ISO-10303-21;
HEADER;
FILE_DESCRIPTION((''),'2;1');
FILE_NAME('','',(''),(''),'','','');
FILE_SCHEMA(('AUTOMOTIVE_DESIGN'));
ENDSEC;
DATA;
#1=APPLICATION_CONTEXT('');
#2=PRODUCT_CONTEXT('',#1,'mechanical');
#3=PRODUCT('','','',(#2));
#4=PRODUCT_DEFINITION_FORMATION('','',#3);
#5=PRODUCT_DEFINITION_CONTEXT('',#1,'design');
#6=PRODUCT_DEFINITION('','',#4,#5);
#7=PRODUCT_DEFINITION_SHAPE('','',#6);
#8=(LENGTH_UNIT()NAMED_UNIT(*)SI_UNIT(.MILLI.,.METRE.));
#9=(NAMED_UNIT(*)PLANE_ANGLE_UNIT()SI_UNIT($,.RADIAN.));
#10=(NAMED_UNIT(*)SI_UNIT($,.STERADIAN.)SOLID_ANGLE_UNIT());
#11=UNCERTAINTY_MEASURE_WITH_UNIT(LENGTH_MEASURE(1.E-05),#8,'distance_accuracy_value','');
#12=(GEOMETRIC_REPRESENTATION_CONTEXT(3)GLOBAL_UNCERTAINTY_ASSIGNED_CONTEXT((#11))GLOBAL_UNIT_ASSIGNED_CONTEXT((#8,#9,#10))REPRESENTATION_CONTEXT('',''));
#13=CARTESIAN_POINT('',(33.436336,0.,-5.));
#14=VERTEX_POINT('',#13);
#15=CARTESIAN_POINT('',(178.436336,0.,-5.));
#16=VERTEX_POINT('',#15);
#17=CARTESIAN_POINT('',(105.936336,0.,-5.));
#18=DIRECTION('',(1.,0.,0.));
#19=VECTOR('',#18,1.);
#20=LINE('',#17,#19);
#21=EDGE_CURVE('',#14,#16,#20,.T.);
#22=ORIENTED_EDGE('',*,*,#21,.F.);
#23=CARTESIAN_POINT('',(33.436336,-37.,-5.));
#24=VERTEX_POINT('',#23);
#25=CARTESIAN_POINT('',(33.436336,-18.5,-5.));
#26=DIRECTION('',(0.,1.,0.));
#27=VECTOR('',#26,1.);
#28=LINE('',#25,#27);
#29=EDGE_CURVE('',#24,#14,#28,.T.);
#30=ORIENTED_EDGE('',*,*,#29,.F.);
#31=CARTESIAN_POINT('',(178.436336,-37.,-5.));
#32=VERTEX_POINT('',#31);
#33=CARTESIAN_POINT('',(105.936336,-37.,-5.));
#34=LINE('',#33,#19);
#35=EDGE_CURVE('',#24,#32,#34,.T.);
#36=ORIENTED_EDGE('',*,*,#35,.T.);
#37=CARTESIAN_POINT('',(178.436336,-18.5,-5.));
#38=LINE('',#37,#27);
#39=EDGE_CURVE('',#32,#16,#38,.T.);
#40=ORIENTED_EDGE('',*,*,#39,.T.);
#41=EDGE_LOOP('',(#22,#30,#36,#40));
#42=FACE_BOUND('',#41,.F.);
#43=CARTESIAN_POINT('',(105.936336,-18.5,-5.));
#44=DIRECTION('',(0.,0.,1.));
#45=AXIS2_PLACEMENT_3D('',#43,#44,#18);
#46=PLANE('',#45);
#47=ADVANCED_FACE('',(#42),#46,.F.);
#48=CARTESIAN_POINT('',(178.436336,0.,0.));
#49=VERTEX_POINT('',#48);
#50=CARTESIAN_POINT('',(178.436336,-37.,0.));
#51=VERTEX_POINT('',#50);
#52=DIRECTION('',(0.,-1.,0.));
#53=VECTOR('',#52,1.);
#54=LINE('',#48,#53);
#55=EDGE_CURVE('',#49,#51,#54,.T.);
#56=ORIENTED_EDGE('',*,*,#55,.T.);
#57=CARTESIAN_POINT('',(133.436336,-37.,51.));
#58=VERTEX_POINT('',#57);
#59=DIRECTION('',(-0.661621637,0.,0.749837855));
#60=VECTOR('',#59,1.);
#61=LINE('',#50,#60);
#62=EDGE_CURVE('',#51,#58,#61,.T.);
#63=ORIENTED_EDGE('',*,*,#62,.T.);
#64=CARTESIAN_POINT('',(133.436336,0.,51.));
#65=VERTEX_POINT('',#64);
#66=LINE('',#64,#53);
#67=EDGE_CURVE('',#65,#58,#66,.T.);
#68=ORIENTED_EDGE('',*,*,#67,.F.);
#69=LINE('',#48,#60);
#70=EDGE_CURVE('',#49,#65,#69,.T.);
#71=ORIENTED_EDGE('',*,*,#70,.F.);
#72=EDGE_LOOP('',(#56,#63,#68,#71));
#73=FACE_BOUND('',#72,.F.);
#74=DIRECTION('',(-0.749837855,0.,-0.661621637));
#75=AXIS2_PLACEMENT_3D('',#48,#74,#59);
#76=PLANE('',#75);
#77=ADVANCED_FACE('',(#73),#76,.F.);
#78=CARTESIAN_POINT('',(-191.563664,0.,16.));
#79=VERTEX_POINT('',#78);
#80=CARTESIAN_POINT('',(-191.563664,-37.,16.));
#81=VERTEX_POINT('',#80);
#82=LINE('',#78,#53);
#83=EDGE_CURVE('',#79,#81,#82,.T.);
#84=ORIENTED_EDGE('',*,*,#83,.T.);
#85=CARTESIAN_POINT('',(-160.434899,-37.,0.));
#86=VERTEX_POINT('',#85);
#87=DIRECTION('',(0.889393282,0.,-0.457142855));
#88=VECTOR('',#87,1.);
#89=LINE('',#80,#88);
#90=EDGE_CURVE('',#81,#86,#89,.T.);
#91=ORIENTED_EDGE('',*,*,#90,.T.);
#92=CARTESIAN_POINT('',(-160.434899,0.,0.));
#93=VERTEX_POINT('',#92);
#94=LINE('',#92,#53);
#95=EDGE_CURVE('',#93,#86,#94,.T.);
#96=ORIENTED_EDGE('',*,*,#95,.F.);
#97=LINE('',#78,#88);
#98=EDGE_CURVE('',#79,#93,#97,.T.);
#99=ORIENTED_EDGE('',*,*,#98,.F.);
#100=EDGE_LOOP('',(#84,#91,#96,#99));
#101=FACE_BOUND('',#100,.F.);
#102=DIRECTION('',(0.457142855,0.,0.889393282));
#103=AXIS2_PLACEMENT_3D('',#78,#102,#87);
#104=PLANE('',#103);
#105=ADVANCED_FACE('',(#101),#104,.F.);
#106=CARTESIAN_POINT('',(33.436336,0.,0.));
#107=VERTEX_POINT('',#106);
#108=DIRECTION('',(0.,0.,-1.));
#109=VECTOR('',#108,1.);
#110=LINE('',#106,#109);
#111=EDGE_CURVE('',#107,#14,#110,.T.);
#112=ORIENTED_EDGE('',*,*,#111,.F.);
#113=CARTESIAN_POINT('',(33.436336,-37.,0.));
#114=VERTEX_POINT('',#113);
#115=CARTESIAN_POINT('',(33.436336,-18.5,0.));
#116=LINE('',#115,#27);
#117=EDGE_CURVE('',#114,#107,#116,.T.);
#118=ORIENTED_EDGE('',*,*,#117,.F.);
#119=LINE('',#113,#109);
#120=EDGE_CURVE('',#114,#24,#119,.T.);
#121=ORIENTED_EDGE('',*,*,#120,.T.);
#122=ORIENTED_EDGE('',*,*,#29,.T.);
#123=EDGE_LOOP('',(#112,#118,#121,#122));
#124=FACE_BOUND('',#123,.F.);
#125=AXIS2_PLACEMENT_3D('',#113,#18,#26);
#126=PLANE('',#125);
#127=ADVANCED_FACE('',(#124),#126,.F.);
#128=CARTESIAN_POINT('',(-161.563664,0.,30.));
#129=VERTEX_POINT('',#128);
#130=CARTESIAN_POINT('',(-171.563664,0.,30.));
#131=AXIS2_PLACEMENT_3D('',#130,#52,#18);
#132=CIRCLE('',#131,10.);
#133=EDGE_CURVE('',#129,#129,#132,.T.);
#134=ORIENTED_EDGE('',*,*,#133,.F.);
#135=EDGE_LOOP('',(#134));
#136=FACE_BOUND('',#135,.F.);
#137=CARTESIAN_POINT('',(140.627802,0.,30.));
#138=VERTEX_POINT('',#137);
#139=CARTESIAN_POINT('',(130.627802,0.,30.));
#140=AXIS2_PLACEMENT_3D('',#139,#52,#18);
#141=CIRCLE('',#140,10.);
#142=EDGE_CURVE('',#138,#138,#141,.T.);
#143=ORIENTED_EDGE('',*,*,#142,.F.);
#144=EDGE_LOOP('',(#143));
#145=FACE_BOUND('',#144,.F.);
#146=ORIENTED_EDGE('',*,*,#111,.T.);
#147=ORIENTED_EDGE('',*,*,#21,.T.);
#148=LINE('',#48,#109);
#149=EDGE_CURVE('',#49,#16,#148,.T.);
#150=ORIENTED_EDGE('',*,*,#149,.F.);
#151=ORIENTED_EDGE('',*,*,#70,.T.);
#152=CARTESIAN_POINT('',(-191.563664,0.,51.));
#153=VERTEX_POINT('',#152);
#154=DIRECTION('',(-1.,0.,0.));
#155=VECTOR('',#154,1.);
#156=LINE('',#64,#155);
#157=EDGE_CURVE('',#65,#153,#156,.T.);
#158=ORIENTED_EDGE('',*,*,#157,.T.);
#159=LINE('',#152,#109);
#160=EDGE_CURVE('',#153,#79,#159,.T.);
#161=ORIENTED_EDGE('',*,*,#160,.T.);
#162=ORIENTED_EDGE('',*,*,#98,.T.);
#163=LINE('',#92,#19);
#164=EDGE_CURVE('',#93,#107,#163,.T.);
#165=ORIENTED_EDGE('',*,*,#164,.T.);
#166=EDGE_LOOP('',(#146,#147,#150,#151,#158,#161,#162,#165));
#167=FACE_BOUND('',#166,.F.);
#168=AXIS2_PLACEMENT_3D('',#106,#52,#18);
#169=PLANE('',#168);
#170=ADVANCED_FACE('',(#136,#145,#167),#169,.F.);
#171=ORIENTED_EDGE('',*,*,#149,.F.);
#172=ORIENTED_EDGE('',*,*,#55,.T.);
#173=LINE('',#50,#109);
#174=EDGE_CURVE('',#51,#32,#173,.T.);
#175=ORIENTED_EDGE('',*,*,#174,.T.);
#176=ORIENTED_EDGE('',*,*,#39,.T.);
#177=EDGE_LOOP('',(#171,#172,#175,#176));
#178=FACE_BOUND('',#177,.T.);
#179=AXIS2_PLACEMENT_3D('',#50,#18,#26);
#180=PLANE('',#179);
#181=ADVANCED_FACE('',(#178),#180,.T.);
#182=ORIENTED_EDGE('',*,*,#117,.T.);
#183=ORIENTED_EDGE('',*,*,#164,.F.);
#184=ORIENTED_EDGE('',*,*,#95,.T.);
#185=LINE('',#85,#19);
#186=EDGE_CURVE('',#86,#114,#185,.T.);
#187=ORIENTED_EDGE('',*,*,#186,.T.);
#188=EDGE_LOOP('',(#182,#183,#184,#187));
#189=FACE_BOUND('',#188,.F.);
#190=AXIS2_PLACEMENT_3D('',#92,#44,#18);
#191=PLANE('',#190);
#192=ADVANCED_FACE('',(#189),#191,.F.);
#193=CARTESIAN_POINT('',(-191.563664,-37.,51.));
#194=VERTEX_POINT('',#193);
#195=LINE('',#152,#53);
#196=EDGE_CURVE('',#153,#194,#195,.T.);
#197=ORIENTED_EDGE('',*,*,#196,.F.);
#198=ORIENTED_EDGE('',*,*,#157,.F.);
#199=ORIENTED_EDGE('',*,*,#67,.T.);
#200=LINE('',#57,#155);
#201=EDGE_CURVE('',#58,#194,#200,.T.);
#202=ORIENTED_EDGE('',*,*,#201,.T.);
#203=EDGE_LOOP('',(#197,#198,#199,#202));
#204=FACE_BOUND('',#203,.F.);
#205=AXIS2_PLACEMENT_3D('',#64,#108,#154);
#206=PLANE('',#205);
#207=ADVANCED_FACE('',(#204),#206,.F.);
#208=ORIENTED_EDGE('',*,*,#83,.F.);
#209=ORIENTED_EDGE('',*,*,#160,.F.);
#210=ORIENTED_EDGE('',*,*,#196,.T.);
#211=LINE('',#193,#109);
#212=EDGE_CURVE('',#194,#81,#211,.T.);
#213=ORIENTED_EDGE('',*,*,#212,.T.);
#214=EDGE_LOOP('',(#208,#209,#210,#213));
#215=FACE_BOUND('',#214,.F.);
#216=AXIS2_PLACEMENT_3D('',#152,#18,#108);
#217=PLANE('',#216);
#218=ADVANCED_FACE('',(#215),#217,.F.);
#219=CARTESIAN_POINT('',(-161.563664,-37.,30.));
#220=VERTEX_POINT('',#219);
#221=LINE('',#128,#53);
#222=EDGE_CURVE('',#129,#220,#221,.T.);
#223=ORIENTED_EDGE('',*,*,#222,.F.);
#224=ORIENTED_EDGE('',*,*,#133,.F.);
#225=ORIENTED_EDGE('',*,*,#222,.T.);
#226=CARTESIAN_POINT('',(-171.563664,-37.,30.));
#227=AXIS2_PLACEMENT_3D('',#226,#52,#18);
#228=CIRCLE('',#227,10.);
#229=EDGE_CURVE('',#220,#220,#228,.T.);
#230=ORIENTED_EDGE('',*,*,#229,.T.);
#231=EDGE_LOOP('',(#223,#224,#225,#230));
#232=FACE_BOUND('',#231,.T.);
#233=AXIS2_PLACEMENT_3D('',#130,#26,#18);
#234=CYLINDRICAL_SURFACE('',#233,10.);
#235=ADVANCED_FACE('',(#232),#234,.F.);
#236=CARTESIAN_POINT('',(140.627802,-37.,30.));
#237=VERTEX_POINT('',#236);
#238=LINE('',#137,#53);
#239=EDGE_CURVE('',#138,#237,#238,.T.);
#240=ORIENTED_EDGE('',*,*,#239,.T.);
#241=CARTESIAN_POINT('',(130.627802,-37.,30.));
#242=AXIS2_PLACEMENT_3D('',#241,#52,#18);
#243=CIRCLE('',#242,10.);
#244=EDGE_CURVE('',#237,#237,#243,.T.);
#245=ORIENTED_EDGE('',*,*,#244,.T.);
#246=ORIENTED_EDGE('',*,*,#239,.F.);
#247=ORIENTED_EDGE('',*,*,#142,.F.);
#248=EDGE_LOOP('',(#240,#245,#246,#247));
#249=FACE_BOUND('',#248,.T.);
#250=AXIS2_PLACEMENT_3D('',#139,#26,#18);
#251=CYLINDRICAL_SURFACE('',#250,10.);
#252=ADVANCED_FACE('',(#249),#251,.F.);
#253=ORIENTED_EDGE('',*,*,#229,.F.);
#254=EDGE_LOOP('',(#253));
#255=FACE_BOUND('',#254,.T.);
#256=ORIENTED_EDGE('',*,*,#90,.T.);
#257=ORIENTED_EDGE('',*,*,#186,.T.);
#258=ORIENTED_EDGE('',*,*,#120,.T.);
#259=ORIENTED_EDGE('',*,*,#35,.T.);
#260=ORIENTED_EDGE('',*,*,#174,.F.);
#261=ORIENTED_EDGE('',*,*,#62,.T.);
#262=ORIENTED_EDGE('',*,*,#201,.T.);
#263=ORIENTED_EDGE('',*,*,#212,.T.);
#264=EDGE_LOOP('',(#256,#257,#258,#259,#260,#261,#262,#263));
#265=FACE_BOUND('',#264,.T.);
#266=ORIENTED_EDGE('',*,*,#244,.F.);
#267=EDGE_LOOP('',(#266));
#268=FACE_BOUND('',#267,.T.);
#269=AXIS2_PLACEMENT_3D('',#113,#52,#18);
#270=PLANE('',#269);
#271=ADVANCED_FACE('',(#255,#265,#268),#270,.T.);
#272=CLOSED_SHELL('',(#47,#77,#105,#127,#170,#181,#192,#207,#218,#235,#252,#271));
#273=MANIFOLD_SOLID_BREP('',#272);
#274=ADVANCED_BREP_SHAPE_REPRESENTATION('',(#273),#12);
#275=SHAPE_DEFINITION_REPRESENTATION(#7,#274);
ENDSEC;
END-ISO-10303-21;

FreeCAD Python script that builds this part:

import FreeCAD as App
import Part
import Sketcher

V = App.Vector
Q = App.Units.Quantity


def add_polygon(sketch, points):
    """Adds a closed chain of lines whose ends are joined by coincident constraints."""
    first, n = sketch.GeometryCount, len(points)
    for a, b in zip(points, points[1:] + points[:1]):
        sketch.addGeometry(Part.LineSegment(App.Vector(*a, 0), App.Vector(*b, 0)), False)
    for i in range(n):
        sketch.addConstraint(Sketcher.Constraint("Coincident", first + i, 2, first + (i + 1) % n, 1))

doc = App.newDocument("Part")
body = doc.addObject("PartDesign::Body", "Body")

sketch1 = doc.addObject("Sketcher::SketchObject", "Sketch")
body.addObject(sketch1)
sketch1.AttachmentSupport = (doc.XZ_Plane, [""])
sketch1.MapMode = "FlatFace"
add_polygon(sketch1, [(-192, 16), (-160, 0), (178, 0), (133, 51), (-192, 51)])
sketch1.addGeometry(Part.Circle(V(-172, 30, 0), V(0, 0, 1), 10), False)
sketch1.addGeometry(Part.Circle(V(131, 30, 0), V(0, 0, 1), 10), False)
sketch1.addConstraint([
    Sketcher.Constraint("Horizontal", 1),
    Sketcher.Constraint("Horizontal", 3),
    Sketcher.Constraint("Vertical", 4),
    Sketcher.Constraint("Equal", 5, 6),
    Sketcher.Constraint("PointOnObject", 0, 2, -1),
    Sketcher.Constraint("Horizontal", 5, 3, 6, 3),
    Sketcher.Constraint("Diameter", 5, Q("20 mm")),
    Sketcher.Constraint("DistanceX", 3, 2, 3, 1, Q("325 mm")),
    Sketcher.Constraint("DistanceY", 4, 2, 4, 1, Q("35 mm")),
    Sketcher.Constraint("Distance", 0, Q("35 mm")),
    Sketcher.Constraint("DistanceY", -1, 1, 5, 3, Q("30 mm")),
    Sketcher.Constraint("DistanceY", -1, 1, 2, 2, Q("51 mm")),
    Sketcher.Constraint("DistanceX", 5, 3, 1, 2, Q("350 mm")),
    Sketcher.Constraint("DistanceX", 2, 2, 1, 2, Q("45 mm")),
    Sketcher.Constraint("DistanceX", -1, 1, 6, 3, Q("130.627802 mm")),
    Sketcher.Constraint("DistanceX", 0, 2, -1, 1, Q("160.434899 mm")),
])
pad1 = doc.addObject("PartDesign::Pad", "Pad")
body.addObject(pad1)
pad1.Profile = sketch1
pad1.Length = 37

sketch2 = doc.addObject("Sketcher::SketchObject", "Sketch001")
body.addObject(sketch2)
sketch2.AttachmentSupport = (doc.XY_Plane, [""])
sketch2.MapMode = "FlatFace"
add_polygon(sketch2, [(33, 0), (33, -37), (178, -37), (178, 0)])
sketch2.addConstraint([
    Sketcher.Constraint("Vertical", 0),
    Sketcher.Constraint("Horizontal", 1),
    Sketcher.Constraint("Vertical", 2),
    Sketcher.Constraint("Horizontal", 3),
    Sketcher.Constraint("PointOnObject", 2, 2, -1),
    Sketcher.Constraint("DistanceX", 1, 1, 1, 2, Q("145 mm")),
    Sketcher.Constraint("DistanceY", 0, 2, 0, 1, Q("37 mm")),
    Sketcher.Constraint("DistanceX", -1, 1, 0, 2, Q("33.436336 mm")),
])
pad2 = doc.addObject("PartDesign::Pad", "Pad001")
body.addObject(pad2)
pad2.Profile = sketch2
pad2.Length = 5
pad2.Reversed = True

doc.recompute()
